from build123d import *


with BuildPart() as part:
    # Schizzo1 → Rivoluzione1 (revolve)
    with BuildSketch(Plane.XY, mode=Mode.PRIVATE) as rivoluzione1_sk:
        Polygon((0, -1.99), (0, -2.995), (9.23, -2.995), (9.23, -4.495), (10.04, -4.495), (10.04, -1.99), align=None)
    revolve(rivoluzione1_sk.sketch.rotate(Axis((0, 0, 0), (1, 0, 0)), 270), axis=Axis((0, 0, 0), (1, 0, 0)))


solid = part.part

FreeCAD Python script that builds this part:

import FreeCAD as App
import Part
import Sketcher
Q = App.Units.Quantity

doc = App.newDocument("Part")
body = doc.addObject("PartDesign::Body", "Body")

# Sketch on XY plane
sketch1 = body.newObject("Sketcher::SketchObject", "Sketch")
sketch1.AttachmentSupport = (doc.getObject("XY_Plane"), [""])
sketch1.MapMode = "FlatFace"
sketch1.addGeometry([
    Part.LineSegment(App.Vector(0, -1.99, 0), App.Vector(0, -2.995, 0)),  # 0
    Part.LineSegment(App.Vector(0, -2.995, 0), App.Vector(9.23, -2.995, 0)),  # 1
    Part.LineSegment(App.Vector(9.23, -2.995, 0), App.Vector(9.23, -4.495, 0)),  # 2
    Part.LineSegment(App.Vector(9.23, -4.495, 0), App.Vector(10.04, -4.495, 0)),  # 3
    Part.LineSegment(App.Vector(10.04, -4.495, 0), App.Vector(10.04, -1.99, 0)),  # 4
    Part.LineSegment(App.Vector(10.04, -1.99, 0), App.Vector(0, -1.99, 0)),  # 5
], False)
sketch1.addConstraint([
    Sketcher.Constraint("Coincident", 0, 2, 1, 1),
    Sketcher.Constraint("Coincident", 1, 2, 2, 1),
    Sketcher.Constraint("Coincident", 2, 2, 3, 1),
    Sketcher.Constraint("Coincident", 3, 2, 4, 1),
    Sketcher.Constraint("Coincident", 4, 2, 5, 1),
    Sketcher.Constraint("Coincident", 5, 2, 0, 1),
    Sketcher.Constraint("Vertical", 0),
    Sketcher.Constraint("Horizontal", 1),
    Sketcher.Constraint("Vertical", 2),
    Sketcher.Constraint("Horizontal", 3),
    Sketcher.Constraint("Vertical", 4),
    Sketcher.Constraint("Horizontal", 5),
    Sketcher.Constraint("PointOnObject", 0, 2, -2),
    Sketcher.Constraint("DistanceY", 2, 2, 2, 1, Q("1.5 mm")),
    Sketcher.Constraint("DistanceX", 1, 1, 1, 2, Q("9.23 mm")),
    Sketcher.Constraint("DistanceX", 3, 1, 3, 2, Q("0.81 mm")),
    Sketcher.Constraint("DistanceY", 0, 2, 0, 1, Q("1.005 mm")),
    Sketcher.Constraint("DistanceY", 4, 2, -1, 1, Q("1.99 mm")),
])
revolution = body.newObject("PartDesign::Revolution", "Revolution")
revolution.Profile = sketch1
revolution.ReferenceAxis = (sketch1, ["H_Axis"])
revolution.Angle = 360

doc.recompute()
